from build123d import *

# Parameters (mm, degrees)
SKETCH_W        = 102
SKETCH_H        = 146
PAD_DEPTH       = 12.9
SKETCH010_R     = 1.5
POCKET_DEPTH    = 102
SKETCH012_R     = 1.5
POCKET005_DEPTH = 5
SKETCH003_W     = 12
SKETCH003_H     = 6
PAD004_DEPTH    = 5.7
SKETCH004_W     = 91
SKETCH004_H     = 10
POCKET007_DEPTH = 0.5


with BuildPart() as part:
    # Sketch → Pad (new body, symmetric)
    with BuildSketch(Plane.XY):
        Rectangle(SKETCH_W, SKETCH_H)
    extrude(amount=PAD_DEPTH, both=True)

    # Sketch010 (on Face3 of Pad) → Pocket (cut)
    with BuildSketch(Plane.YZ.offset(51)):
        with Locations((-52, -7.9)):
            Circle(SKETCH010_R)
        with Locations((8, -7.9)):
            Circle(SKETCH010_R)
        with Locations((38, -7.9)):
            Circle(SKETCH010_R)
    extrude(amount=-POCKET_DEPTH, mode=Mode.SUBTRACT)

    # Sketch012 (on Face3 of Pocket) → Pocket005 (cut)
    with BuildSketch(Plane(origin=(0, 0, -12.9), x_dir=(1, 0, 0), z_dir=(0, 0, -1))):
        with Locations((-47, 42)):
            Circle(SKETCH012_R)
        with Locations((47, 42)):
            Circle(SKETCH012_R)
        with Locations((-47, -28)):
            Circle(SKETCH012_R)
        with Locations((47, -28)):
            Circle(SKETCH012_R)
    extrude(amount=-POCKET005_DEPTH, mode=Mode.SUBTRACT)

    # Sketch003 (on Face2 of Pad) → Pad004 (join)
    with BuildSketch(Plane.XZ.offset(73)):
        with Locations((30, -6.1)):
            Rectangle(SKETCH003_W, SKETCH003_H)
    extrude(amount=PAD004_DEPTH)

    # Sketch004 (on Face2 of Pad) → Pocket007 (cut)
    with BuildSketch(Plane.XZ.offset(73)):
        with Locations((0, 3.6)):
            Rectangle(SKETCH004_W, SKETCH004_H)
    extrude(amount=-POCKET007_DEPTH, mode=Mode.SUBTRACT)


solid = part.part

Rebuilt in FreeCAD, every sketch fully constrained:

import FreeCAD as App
import Part
import Sketcher
from FreeCAD import Vector


def add_polygon(sketch, points):
    """Adds a closed chain of lines whose ends are joined by coincident constraints."""
    first, n = sketch.GeometryCount, len(points)
    for a, b in zip(points, points[1:] + points[:1]):
        sketch.addGeometry(Part.LineSegment(App.Vector(*a, 0), App.Vector(*b, 0)), False)
    for i in range(n):
        sketch.addConstraint(Sketcher.Constraint("Coincident", first + i, 2, first + (i + 1) % n, 1))

doc = App.newDocument("Part")
params = doc.addObject("Spreadsheet::Sheet", "Params")
for row, (alias, value) in enumerate([
    ("sketch1_width", "102 mm"),
    ("sketch1_height", "146 mm"),
    ("pad1_length", "25.8 mm"),
    ("sketch2_diameter", "3 mm"),
    ("pocket1_length", "102 mm"),
    ("sketch3_diameter", "3 mm"),
    ("pocket2_length", "5 mm"),
    ("sketch4_width", "12 mm"),
    ("sketch4_height", "6 mm"),
    ("pad2_length", "5.7 mm"),
    ("sketch5_width", "91 mm"),
    ("sketch5_height", "10 mm"),
    ("pocket3_length", "0.5 mm"),
], start=1):
    params.set(f"A{row}", alias)
    params.set(f"B{row}", "=" + value)
    params.setAlias(f"B{row}", alias)

body = doc.addObject("PartDesign::Body", "Body")

# Sketch on XY plane
sketch1 = body.newObject("Sketcher::SketchObject", "Sketch")
sketch1.AttachmentSupport = (doc.getObject("XY_Plane"), [""])
sketch1.MapMode = "FlatFace"
add_polygon(sketch1, [(-51, 73), (-51, -73), (51, -73), (51, 73)])  # lines 0-3
sketch1.addConstraint([
    Sketcher.Constraint("Vertical", 0),
    Sketcher.Constraint("Horizontal", 1),
    Sketcher.Constraint("Vertical", 2),
    Sketcher.Constraint("Horizontal", 3),
    Sketcher.Constraint("Symmetric", 0, 2, 2, 2, -1, 1),
    Sketcher.Constraint("DistanceX", 1, 1, 1, 2, 102.0),
    Sketcher.Constraint("DistanceY", 0, 2, 0, 1, 146.0),
])
sketch1.setExpression("Constraints[9]", "Params.sketch1_width")
sketch1.setExpression("Constraints[10]", "Params.sketch1_height")
pad1 = body.newObject("PartDesign::Pad", "Pad")
pad1.Profile = sketch1
pad1.setExpression("Length", "Params.pad1_length")
pad1.Midplane = True

# Sketch on YZ plane
sketch2 = body.newObject("Sketcher::SketchObject", "Sketch001")
sketch2.AttachmentSupport = (doc.getObject("YZ_Plane"), [""])
sketch2.MapMode = "FlatFace"
sketch2.AttachmentOffset = App.Placement(Vector(0, 0, 51), App.Rotation())
sketch2.addGeometry([
    Part.Circle(Vector(-52, -7.9, 0), Vector(0, 0, 1), 1.5),
    Part.Circle(Vector(8, -7.9, 0), Vector(0, 0, 1), 1.5),
    Part.Circle(Vector(38, -7.9, 0), Vector(0, 0, 1), 1.5),
], False)
sketch2.addConstraint([
    Sketcher.Constraint("Equal", 0, 1),
    Sketcher.Constraint("Equal", 1, 2),
    Sketcher.Constraint("Horizontal", 0, 3, 1, 3),
    Sketcher.Constraint("Horizontal", 1, 3, 2, 3),
    Sketcher.Constraint("Diameter", 0, 3.0),
    Sketcher.Constraint("DistanceX", 0, 3, -1, 1, 52.0),
    Sketcher.Constraint("DistanceX", -1, 1, 1, 3, 8.0),
    Sketcher.Constraint("DistanceX", -1, 1, 2, 3, 38.0),
    Sketcher.Constraint("DistanceY", 0, 3, -1, 1, 7.9),
])
sketch2.setExpression("Constraints[4]", "Params.sketch2_diameter")
pocket1 = body.newObject("PartDesign::Pocket", "Pocket")
pocket1.Profile = sketch2
pocket1.setExpression("Length", "Params.pocket1_length")

# Sketch on XY plane
sketch3 = body.newObject("Sketcher::SketchObject", "Sketch002")
sketch3.AttachmentSupport = (doc.getObject("XY_Plane"), [""])
sketch3.MapMode = "FlatFace"
sketch3.AttachmentOffset = App.Placement(Vector(0, 0, -12.9), App.Rotation())
sketch3.addGeometry([
    Part.Circle(Vector(-47, -42, 0), Vector(0, 0, 1), 1.5),
    Part.Circle(Vector(47, -42, 0), Vector(0, 0, 1), 1.5),
    Part.Circle(Vector(-47, 28, 0), Vector(0, 0, 1), 1.5),
    Part.Circle(Vector(47, 28, 0), Vector(0, 0, 1), 1.5),
], False)
sketch3.addConstraint([
    Sketcher.Constraint("Equal", 0, 1),
    Sketcher.Constraint("Equal", 1, 2),
    Sketcher.Constraint("Equal", 2, 3),
    Sketcher.Constraint("Symmetric", 0, 3, 1, 3, -2),
    Sketcher.Constraint("Symmetric", 2, 3, 3, 3, -2),
    Sketcher.Constraint("Vertical", 0, 3, 2, 3),
    Sketcher.Constraint("Diameter", 0, 3.0),
    Sketcher.Constraint("DistanceX", 0, 3, -1, 1, 47.0),
    Sketcher.Constraint("DistanceY", 0, 3, -1, 1, 42.0),
    Sketcher.Constraint("DistanceY", -1, 1, 2, 3, 28.0),
])
sketch3.setExpression("Constraints[6]", "Params.sketch3_diameter")
pocket2 = body.newObject("PartDesign::Pocket", "Pocket001")
pocket2.Profile = sketch3
pocket2.setExpression("Length", "Params.pocket2_length")
pocket2.Reversed = True

# Sketch on XZ plane
sketch4 = body.newObject("Sketcher::SketchObject", "Sketch003")
sketch4.AttachmentSupport = (doc.getObject("XZ_Plane"), [""])
sketch4.MapMode = "FlatFace"
sketch4.AttachmentOffset = App.Placement(Vector(0, 0, 73), App.Rotation())
add_polygon(sketch4, [(24, -3), (24, -9), (36, -9), (36, -3)])  # lines 0-3
sketch4.addConstraint([
    Sketcher.Constraint("Vertical", 0),
    Sketcher.Constraint("Horizontal", 1),
    Sketcher.Constraint("Vertical", 2),
    Sketcher.Constraint("Horizontal", 3),
    Sketcher.Constraint("DistanceX", 1, 1, 1, 2, 12.0),
    Sketcher.Constraint("DistanceY", 0, 2, 0, 1, 6.0),
    Sketcher.Constraint("DistanceX", -1, 1, 0, 2, 24.0),
    Sketcher.Constraint("DistanceY", 0, 2, -1, 1, 9.1),
])
sketch4.setExpression("Constraints[8]", "Params.sketch4_width")
sketch4.setExpression("Constraints[9]", "Params.sketch4_height")
pad2 = body.newObject("PartDesign::Pad", "Pad001")
pad2.Profile = sketch4
pad2.setExpression("Length", "Params.pad2_length")

# Sketch on XZ plane
sketch5 = body.newObject("Sketcher::SketchObject", "Sketch004")
sketch5.AttachmentSupport = (doc.getObject("XZ_Plane"), [""])
sketch5.MapMode = "FlatFace"
sketch5.AttachmentOffset = App.Placement(Vector(0, 0, 73), App.Rotation())
add_polygon(sketch5, [(-46, 9), (-46, -1), (46, -1), (46, 9)])  # lines 0-3
sketch5.addConstraint([
    Sketcher.Constraint("Vertical", 0),
    Sketcher.Constraint("Horizontal", 1),
    Sketcher.Constraint("Vertical", 2),
    Sketcher.Constraint("Horizontal", 3),
    Sketcher.Constraint("DistanceX", 1, 1, 1, 2, 91.0),
    Sketcher.Constraint("DistanceY", 0, 2, 0, 1, 10.0),
    Sketcher.Constraint("DistanceX", 0, 2, -1, 1, 45.5),
    Sketcher.Constraint("DistanceY", 0, 2, -1, 1, 1.4),
])
sketch5.setExpression("Constraints[8]", "Params.sketch5_width")
sketch5.setExpression("Constraints[9]", "Params.sketch5_height")
pocket3 = body.newObject("PartDesign::Pocket", "Pocket002")
pocket3.Profile = sketch5
pocket3.setExpression("Length", "Params.pocket3_length")

doc.recompute()
